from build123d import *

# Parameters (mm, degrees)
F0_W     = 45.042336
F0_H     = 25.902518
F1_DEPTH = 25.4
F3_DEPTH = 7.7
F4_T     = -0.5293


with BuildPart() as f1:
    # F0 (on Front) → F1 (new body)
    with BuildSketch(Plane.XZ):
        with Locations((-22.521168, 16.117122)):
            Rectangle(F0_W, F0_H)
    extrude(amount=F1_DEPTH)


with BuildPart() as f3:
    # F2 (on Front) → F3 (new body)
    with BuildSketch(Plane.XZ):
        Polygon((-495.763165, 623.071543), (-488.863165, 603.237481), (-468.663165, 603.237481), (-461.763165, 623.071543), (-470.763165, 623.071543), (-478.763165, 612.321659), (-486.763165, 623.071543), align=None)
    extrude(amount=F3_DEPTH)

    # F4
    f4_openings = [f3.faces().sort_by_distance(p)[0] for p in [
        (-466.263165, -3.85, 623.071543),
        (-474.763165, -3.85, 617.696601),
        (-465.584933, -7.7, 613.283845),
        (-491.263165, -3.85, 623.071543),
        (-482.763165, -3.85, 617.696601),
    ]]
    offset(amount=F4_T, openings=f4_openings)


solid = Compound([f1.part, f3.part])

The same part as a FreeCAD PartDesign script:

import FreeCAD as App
import Part
import Sketcher


def faces_at(feature, points):
    """Names of the faces that lie closest to the given points."""
    faces = feature.Shape.Faces
    near = lambda p: min(range(len(faces)), key=lambda i: faces[i].distToShape(Part.Vertex(*p))[0])
    return sorted({f"Face{near(p) + 1}" for p in points})

doc = App.newDocument("Part")
body = doc.addObject("PartDesign::Body", "Body")

sketch1 = body.newObject("Sketcher::SketchObject", "Sketch")
sketch1.AttachmentSupport = (doc.getObject("XZ_Plane"), [""])
sketch1.MapMode = "FlatFace"
sketch1.addGeometry([
    Part.LineSegment(App.Vector(-45, 29, 0), App.Vector(-45, 3, 0)),
    Part.LineSegment(App.Vector(-45, 3, 0), App.Vector(0, 3, 0)),
    Part.LineSegment(App.Vector(0, 3, 0), App.Vector(0, 29, 0)),
    Part.LineSegment(App.Vector(0, 29, 0), App.Vector(-45, 29, 0)),
], False)
sketch1.addConstraint([
    Sketcher.Constraint("Coincident", 0, 2, 1, 1),
    Sketcher.Constraint("Coincident", 1, 2, 2, 1),
    Sketcher.Constraint("Coincident", 2, 2, 3, 1),
    Sketcher.Constraint("Coincident", 3, 2, 0, 1),
    Sketcher.Constraint("Vertical", 0),
    Sketcher.Constraint("Horizontal", 1),
    Sketcher.Constraint("Vertical", 2),
    Sketcher.Constraint("Horizontal", 3),
    Sketcher.Constraint("PointOnObject", 1, 2, -2),
    Sketcher.Constraint("DistanceY", 0, 2, 0, 1, 25.902518),
    Sketcher.Constraint("DistanceX", 1, 1, 1, 2, 45.042336),
    Sketcher.Constraint("DistanceY", -1, 1, 2, 2, 29.068381),
])
pad1 = body.newObject("PartDesign::Pad", "Pad")
pad1.Profile = sketch1
pad1.Length = 25.4
body2 = doc.addObject("PartDesign::Body", "Body001")

sketch2 = body2.newObject("Sketcher::SketchObject", "Sketch001")
sketch2.AttachmentSupport = (doc.getObject("XZ_Plane001"), [""])
sketch2.MapMode = "FlatFace"
sketch2.addGeometry([
    Part.LineSegment(App.Vector(-496, 623, 0), App.Vector(-489, 603, 0)),
    Part.LineSegment(App.Vector(-489, 603, 0), App.Vector(-469, 603, 0)),
    Part.LineSegment(App.Vector(-469, 603, 0), App.Vector(-462, 623, 0)),
    Part.LineSegment(App.Vector(-462, 623, 0), App.Vector(-471, 623, 0)),
    Part.LineSegment(App.Vector(-471, 623, 0), App.Vector(-479, 612, 0)),
    Part.LineSegment(App.Vector(-479, 612, 0), App.Vector(-487, 623, 0)),
    Part.LineSegment(App.Vector(-487, 623, 0), App.Vector(-496, 623, 0)),
], False)
sketch2.addConstraint([
    Sketcher.Constraint("Coincident", 0, 2, 1, 1),
    Sketcher.Constraint("Coincident", 1, 2, 2, 1),
    Sketcher.Constraint("Coincident", 2, 2, 3, 1),
    Sketcher.Constraint("Coincident", 3, 2, 4, 1),
    Sketcher.Constraint("Coincident", 4, 2, 5, 1),
    Sketcher.Constraint("Coincident", 5, 2, 6, 1),
    Sketcher.Constraint("Coincident", 6, 2, 0, 1),
    Sketcher.Constraint("Horizontal", 1),
    Sketcher.Constraint("Horizontal", 3),
    Sketcher.Constraint("Horizontal", 6),
    Sketcher.Constraint("Horizontal", 3, 2, 5, 2),
    Sketcher.Constraint("Equal", 3, 6),
    Sketcher.Constraint("Equal", 0, 2),
    Sketcher.Constraint("Equal", 4, 5),
    Sketcher.Constraint("DistanceX", 3, 2, 3, 1, 9.0),
    Sketcher.Constraint("Distance", 0, 21.0),
    Sketcher.Constraint("DistanceX", 1, 1, 1, 2, 20.2),
    Sketcher.Constraint("DistanceX", 4, 2, 3, 2, 8.0),
    Sketcher.Constraint("Distance", 4, 13.4),
    Sketcher.Constraint("DistanceY", -1, 1, 0, 2, 603.237481),
    Sketcher.Constraint("DistanceX", 0, 2, -1, 1, 488.863165),
])
pad2 = body2.newObject("PartDesign::Pad", "Pad001")
pad2.Profile = sketch2
pad2.Length = 7.7
doc.recompute()

thickness = body2.newObject("PartDesign::Thickness", "Thickness")
thickness.Base = (pad2, faces_at(pad2, [
    (-466.263, -3.85, 623.072),
    (-474.763, -3.85, 617.697),
    (-485.563, -7.7, 609.188),
    (-491.263, -3.85, 623.072),
    (-482.763, -3.85, 617.697),
]))
thickness.Value = 0.5293
thickness.Reversed = True
thickness.Join = "Arc"

doc.recompute()
